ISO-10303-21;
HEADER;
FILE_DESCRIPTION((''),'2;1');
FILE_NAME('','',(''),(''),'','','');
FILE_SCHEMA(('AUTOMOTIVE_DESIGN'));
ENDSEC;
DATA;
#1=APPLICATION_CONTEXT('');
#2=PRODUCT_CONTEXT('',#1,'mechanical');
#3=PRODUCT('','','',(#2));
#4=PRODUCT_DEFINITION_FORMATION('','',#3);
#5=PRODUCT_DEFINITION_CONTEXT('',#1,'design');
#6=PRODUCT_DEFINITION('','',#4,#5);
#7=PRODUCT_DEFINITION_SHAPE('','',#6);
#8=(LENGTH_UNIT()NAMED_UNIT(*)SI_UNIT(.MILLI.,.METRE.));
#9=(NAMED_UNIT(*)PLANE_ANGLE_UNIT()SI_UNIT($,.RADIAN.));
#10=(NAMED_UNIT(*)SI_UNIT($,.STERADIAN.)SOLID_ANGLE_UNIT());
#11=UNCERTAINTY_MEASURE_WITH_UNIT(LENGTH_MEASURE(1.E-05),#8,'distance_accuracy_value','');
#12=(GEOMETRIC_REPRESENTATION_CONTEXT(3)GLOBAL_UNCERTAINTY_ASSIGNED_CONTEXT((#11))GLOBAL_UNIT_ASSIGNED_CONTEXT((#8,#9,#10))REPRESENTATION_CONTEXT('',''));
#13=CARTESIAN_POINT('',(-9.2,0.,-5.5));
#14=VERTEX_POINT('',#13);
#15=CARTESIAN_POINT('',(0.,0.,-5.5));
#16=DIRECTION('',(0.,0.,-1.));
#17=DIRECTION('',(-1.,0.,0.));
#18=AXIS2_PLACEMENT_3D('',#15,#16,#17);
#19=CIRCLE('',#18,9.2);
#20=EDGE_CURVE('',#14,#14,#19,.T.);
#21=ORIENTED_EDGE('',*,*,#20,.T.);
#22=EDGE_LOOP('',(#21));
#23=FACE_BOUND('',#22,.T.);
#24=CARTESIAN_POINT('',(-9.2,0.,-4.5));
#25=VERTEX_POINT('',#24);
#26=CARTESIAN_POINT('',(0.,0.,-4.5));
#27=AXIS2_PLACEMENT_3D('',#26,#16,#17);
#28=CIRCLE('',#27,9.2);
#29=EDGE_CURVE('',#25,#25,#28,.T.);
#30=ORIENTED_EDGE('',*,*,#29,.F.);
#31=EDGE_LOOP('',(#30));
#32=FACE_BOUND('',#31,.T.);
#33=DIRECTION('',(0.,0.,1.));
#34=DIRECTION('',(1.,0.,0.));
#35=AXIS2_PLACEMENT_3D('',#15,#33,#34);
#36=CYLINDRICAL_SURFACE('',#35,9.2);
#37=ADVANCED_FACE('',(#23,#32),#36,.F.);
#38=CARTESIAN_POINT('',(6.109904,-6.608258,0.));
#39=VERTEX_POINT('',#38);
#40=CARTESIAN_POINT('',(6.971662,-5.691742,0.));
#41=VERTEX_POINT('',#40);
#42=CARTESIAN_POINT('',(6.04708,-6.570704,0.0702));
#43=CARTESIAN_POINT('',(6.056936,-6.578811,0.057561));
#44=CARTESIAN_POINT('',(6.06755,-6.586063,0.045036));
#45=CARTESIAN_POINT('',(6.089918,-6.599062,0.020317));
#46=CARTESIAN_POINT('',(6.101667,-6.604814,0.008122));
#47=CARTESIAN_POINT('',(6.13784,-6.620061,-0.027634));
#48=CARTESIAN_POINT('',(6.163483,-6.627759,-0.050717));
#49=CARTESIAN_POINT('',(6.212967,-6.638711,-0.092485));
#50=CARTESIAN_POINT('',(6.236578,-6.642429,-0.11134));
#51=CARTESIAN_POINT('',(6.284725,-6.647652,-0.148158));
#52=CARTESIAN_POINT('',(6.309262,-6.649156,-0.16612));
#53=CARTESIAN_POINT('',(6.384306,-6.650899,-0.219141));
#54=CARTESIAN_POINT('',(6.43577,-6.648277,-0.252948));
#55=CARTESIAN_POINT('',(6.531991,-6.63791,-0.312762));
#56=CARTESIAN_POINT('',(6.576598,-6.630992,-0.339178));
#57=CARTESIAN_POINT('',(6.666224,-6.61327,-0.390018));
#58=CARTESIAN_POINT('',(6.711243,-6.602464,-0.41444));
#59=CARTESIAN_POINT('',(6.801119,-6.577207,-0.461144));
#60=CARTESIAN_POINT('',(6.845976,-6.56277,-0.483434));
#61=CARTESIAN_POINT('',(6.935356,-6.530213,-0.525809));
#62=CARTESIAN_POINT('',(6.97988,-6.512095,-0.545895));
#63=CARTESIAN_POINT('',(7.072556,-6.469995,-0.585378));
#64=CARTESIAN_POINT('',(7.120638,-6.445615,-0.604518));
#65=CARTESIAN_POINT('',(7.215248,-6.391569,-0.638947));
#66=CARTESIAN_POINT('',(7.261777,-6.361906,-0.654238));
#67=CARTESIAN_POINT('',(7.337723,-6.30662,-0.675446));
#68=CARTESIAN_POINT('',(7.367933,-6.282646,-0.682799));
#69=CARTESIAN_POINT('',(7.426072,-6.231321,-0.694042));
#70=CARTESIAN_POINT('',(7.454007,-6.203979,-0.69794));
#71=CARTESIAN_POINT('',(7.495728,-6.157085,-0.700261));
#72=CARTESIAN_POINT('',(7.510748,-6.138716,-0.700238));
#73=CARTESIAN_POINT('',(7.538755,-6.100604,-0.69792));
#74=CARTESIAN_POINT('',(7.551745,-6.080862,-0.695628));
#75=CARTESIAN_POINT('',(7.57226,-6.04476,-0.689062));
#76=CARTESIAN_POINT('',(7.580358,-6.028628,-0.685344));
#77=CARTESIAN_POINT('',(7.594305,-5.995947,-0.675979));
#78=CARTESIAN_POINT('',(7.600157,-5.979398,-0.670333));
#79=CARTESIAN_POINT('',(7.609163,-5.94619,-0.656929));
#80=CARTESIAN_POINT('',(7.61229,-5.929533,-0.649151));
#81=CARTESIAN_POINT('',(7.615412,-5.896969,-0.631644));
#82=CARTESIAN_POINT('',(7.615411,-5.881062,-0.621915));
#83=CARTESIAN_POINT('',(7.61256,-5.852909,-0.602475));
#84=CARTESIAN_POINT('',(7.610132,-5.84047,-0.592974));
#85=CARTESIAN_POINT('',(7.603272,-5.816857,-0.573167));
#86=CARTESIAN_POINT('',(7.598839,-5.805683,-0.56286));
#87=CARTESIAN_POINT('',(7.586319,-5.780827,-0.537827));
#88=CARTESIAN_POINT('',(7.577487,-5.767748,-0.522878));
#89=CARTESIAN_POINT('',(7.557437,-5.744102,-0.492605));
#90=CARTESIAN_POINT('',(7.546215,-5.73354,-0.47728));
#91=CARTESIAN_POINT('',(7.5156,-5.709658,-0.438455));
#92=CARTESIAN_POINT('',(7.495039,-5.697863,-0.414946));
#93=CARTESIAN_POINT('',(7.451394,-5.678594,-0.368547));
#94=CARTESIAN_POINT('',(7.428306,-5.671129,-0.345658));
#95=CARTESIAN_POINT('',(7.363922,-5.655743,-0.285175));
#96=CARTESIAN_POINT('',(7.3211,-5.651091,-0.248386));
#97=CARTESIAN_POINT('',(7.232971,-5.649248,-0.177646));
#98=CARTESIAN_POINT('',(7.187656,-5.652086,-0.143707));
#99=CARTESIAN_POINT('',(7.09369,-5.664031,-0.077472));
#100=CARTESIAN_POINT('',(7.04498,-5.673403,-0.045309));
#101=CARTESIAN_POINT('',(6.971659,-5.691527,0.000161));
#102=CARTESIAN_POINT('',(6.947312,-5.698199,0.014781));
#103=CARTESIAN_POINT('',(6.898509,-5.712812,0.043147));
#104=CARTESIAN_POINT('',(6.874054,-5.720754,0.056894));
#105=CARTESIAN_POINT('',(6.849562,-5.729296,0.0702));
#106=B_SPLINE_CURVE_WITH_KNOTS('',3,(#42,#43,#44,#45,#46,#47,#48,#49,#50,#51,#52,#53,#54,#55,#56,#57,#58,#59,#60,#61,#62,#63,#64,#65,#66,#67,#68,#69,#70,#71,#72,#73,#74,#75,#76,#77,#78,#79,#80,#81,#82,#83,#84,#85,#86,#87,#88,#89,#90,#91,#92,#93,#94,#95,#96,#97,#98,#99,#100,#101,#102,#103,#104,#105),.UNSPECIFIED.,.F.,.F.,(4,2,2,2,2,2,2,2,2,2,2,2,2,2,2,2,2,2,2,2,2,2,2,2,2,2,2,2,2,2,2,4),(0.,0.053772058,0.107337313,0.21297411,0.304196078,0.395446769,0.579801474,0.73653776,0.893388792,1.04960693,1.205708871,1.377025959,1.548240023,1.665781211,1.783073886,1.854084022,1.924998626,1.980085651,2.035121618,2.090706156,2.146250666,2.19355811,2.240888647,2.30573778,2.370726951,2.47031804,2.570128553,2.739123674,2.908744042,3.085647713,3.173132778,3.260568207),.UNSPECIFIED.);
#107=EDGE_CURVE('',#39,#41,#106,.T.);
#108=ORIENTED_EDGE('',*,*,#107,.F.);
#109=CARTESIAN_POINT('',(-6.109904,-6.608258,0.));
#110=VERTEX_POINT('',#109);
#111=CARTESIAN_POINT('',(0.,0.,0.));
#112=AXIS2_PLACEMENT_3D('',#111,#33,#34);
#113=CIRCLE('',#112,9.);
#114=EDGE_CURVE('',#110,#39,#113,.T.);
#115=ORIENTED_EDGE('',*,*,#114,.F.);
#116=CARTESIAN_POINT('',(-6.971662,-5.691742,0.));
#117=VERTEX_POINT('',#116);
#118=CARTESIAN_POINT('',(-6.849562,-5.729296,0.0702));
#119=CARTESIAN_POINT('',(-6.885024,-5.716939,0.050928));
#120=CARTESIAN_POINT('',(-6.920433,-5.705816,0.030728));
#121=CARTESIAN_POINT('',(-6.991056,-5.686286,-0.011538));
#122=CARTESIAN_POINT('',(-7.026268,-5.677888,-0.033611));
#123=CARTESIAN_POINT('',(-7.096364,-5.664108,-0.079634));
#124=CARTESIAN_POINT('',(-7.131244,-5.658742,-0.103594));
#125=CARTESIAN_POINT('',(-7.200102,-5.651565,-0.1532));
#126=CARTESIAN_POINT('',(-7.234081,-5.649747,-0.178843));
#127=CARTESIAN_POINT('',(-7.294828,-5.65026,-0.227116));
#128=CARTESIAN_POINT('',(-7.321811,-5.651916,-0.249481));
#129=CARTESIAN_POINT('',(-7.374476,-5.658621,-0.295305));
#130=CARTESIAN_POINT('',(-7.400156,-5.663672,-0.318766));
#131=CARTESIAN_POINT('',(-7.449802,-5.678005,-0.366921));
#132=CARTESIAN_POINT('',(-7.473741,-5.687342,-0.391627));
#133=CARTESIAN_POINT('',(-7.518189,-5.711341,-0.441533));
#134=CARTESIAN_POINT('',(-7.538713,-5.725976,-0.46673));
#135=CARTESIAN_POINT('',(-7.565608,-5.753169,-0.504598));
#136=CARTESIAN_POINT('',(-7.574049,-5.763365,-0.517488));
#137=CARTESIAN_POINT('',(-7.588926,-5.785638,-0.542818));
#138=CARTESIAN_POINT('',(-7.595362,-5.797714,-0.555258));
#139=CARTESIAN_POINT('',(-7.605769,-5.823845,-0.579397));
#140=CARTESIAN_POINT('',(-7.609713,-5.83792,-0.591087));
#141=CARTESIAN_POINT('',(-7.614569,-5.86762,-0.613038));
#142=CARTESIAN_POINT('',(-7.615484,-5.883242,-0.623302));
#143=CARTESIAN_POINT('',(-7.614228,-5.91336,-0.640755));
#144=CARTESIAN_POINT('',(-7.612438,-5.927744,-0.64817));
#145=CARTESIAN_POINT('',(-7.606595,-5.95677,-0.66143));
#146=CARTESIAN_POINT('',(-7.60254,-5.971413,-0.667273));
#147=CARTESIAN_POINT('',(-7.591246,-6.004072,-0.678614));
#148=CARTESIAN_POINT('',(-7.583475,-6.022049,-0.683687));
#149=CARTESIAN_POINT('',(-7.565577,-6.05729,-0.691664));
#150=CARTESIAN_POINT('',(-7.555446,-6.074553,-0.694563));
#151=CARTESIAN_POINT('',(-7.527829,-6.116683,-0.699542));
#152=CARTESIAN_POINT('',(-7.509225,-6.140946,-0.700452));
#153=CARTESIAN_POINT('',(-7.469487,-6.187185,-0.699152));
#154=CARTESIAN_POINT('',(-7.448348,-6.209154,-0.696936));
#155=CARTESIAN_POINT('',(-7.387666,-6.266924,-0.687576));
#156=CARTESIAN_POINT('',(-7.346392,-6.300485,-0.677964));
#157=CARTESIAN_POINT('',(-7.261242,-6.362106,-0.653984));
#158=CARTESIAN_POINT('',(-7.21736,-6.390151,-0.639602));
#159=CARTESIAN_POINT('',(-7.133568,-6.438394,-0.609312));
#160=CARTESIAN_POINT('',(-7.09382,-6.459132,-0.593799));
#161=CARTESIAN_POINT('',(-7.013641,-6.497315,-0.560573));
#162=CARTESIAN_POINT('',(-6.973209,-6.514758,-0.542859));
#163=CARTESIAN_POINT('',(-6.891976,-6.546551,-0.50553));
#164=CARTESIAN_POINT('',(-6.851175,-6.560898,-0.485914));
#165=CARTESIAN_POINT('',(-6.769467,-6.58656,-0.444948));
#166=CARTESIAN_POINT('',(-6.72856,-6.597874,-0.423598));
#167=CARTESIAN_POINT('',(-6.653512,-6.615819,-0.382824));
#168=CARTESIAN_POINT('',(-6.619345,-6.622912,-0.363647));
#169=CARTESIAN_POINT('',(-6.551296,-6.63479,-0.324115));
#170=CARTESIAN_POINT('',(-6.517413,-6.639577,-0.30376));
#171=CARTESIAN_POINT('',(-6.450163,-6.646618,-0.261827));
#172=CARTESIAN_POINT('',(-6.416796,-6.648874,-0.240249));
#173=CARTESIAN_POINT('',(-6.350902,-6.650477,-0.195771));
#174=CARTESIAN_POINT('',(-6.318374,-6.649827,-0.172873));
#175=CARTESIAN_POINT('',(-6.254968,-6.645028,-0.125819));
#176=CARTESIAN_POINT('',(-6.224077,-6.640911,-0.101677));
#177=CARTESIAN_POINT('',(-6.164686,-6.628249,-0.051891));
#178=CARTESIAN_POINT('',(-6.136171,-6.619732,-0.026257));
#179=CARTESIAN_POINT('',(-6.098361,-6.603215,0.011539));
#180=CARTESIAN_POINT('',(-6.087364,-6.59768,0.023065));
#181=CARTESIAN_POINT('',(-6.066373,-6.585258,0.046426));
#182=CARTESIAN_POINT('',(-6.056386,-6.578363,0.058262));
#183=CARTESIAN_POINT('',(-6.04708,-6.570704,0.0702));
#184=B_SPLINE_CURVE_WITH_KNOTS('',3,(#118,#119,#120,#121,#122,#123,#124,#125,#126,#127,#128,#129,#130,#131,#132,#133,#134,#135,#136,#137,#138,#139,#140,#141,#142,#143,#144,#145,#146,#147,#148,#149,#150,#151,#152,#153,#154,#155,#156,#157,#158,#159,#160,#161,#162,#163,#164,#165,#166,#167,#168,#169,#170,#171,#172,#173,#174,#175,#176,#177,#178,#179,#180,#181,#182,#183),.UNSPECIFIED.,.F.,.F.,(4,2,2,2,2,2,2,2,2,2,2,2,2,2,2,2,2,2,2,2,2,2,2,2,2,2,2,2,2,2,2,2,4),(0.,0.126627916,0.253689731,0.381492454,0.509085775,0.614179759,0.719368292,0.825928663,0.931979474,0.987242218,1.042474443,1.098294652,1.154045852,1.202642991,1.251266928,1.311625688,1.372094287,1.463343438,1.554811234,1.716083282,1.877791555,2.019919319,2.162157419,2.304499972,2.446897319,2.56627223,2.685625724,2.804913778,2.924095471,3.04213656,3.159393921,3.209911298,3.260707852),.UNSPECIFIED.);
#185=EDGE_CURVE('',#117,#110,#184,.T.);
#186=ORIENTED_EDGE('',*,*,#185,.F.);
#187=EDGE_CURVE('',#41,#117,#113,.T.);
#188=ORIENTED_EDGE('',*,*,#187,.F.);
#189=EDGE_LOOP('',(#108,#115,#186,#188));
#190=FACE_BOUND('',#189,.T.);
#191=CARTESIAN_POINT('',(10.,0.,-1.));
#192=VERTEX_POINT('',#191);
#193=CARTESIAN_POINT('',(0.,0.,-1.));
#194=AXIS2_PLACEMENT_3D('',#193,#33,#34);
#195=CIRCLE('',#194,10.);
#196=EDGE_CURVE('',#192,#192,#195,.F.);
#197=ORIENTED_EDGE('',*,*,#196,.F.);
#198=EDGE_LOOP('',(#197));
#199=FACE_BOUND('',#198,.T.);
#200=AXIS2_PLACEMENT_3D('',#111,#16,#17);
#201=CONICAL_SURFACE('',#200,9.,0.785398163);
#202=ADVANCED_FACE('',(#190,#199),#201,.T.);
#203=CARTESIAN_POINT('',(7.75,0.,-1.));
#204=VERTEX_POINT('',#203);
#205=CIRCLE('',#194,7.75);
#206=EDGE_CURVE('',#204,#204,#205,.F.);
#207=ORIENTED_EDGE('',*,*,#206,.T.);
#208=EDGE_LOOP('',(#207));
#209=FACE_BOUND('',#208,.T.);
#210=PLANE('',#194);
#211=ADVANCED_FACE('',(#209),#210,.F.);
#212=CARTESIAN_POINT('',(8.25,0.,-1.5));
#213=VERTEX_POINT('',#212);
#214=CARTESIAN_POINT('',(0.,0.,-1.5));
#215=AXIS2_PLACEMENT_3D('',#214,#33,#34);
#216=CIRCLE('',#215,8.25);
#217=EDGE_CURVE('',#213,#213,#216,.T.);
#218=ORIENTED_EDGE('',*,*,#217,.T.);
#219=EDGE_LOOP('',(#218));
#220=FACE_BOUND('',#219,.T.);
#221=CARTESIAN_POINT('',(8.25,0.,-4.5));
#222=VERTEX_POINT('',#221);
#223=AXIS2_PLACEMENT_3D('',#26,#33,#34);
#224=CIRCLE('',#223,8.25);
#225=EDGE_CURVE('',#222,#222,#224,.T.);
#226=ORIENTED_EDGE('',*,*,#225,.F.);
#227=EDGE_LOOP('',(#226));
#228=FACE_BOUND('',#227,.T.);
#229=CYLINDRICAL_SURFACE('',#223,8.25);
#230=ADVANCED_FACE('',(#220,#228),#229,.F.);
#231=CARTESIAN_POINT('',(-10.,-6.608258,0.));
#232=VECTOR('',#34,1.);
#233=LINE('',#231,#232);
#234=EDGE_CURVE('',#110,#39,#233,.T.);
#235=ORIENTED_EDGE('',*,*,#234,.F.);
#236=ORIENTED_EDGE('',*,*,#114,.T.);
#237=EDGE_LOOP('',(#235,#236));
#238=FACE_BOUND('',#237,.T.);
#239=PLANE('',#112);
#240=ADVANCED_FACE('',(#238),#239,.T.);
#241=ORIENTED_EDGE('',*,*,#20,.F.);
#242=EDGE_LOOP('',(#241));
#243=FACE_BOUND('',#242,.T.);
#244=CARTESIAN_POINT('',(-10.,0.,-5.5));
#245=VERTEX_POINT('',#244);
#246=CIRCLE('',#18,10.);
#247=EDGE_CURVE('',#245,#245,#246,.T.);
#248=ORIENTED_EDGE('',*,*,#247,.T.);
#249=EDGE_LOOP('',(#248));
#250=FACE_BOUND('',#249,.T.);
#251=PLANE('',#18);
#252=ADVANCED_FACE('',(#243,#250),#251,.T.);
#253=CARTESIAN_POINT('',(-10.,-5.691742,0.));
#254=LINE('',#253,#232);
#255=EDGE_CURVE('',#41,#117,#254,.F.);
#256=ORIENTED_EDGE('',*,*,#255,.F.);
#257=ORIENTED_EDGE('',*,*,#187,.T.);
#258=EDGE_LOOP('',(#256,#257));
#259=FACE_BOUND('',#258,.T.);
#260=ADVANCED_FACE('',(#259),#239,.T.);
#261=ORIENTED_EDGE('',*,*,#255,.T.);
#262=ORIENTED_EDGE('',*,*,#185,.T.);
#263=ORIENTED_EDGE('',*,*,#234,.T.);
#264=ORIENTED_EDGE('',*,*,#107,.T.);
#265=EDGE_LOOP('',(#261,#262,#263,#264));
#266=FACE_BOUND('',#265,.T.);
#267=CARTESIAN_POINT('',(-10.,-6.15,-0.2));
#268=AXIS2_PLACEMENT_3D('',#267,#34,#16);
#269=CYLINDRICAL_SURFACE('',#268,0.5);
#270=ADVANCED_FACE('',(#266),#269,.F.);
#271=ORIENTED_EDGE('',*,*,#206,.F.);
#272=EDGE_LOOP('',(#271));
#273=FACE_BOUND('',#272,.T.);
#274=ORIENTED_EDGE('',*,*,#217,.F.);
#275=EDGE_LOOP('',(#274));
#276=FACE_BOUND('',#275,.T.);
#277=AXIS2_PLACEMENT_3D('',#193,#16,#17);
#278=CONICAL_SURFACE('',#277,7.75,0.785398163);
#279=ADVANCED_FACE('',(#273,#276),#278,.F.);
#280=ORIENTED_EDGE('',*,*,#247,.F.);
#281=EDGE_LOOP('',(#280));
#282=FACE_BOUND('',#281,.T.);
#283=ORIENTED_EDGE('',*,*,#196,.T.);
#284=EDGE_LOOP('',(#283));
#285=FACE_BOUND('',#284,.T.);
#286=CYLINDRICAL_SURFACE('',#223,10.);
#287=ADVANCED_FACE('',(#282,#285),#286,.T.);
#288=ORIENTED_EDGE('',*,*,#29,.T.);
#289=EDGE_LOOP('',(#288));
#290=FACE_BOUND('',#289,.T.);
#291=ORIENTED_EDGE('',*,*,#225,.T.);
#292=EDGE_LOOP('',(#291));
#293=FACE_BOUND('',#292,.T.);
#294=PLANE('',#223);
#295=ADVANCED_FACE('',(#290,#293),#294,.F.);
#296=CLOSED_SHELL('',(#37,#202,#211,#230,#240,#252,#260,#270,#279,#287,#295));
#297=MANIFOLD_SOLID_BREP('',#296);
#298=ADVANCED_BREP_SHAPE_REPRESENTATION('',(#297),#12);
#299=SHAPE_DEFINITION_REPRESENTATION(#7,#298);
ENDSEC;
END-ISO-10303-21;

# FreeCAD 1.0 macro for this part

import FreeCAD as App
import Part
import Sketcher

V = App.Vector
Q = App.Units.Quantity


def edges_at(feature, points):
    """Names of the edges that pass closest to the given points."""
    edges = feature.Shape.Edges
    near = lambda p: min(range(len(edges)), key=lambda i: edges[i].distToShape(Part.Vertex(*p))[0])
    return sorted({f"Edge{near(p) + 1}" for p in points})

doc = App.newDocument("Part")
body = doc.addObject("PartDesign::Body", "Body")

# Sketch on XY plane
sketch1 = body.newObject("Sketcher::SketchObject", "Sketch")
sketch1.AttachmentSupport = (doc.getObject("XY_Plane"), [""])
sketch1.MapMode = "FlatFace"
sketch1.addGeometry([
    Part.Circle(V(0, 0, 0), V(0, 0, 1), 10),
    Part.Circle(V(0, 0, 0), V(0, 0, 1), 8),
], False)
sketch1.addConstraint([
    Sketcher.Constraint("Coincident", 0, 3, -1, 1),
    Sketcher.Constraint("Coincident", 1, 3, -1, 1),
    Sketcher.Constraint("Diameter", 0, Q("20 mm")),
    Sketcher.Constraint("Diameter", 1, Q("16.5 mm")),
])
pad1 = body.newObject("PartDesign::Pad", "Pad")
pad1.Profile = sketch1
pad1.Length = 4.5
pad1.Reversed = True

# Sketch on XY plane
sketch2 = body.newObject("Sketcher::SketchObject", "Sketch001")
sketch2.AttachmentSupport = (doc.getObject("XY_Plane"), [""])
sketch2.MapMode = "FlatFace"
sketch2.addGeometry(Part.Circle(V(0, 0, 0), V(0, 0, 1), 8), False)
sketch2.addConstraint([
    Sketcher.Constraint("Coincident", 0, 3, -1, 1),
    Sketcher.Constraint("Diameter", 0, Q("16.5 mm")),
])
pad2 = body.newObject("PartDesign::Pad", "Pad001")
pad2.Profile = sketch2
pad2.Length = 1
pad2.Reversed = True

# Sketch on XY plane
sketch3 = body.newObject("Sketcher::SketchObject", "Sketch002")
sketch3.AttachmentSupport = (doc.getObject("XY_Plane"), [""])
sketch3.MapMode = "FlatFace"
sketch3.AttachmentOffset = App.Placement(V(0, 0, -4.5), App.Rotation())
sketch3.addGeometry([
    Part.Circle(V(0, 0, 0), V(0, 0, 1), 10),
    Part.Circle(V(0, 0, 0), V(0, 0, 1), 9),
], False)
sketch3.addConstraint([
    Sketcher.Constraint("Coincident", 0, 3, -1, 1),
    Sketcher.Constraint("Coincident", 1, 3, -1, 1),
    Sketcher.Constraint("Diameter", 0, Q("20 mm")),
    Sketcher.Constraint("Diameter", 1, Q("18.4 mm")),
])
pad3 = body.newObject("PartDesign::Pad", "Pad002")
pad3.Profile = sketch3
pad3.Length = 1
pad3.Reversed = True
doc.recompute()

chamfer = body.newObject("PartDesign::Chamfer", "Chamfer")
chamfer.Base = (pad3, edges_at(pad3, [(-10, 0, 0)]))
chamfer.Size = 1
doc.recompute()

chamfer2 = body.newObject("PartDesign::Chamfer", "Chamfer001")
chamfer2.Base = (chamfer, edges_at(chamfer, [(-8.25, 0, -1)]))
chamfer2.Size = 0.5

# Sketch on YZ plane
sketch4 = body.newObject("Sketcher::SketchObject", "Sketch003")
sketch4.AttachmentSupport = (doc.getObject("YZ_Plane"), [""])
sketch4.MapMode = "FlatFace"
sketch4.addGeometry(Part.Circle(V(-6.2, -0.2, 0), V(0, 0, 1), 0.5), False)
sketch4.addConstraint([
    Sketcher.Constraint("Diameter", 0, Q("1 mm")),
    Sketcher.Constraint("DistanceY", 0, 3, -1, 1, Q("0.2 mm")),
    Sketcher.Constraint("DistanceX", 0, 3, -1, 1, Q("6.15 mm")),
])
pocket1 = body.newObject("PartDesign::Pocket", "Pocket")
pocket1.Profile = sketch4
pocket1.Type = "ThroughAll"
pocket1.Midplane = True

doc.recompute()
